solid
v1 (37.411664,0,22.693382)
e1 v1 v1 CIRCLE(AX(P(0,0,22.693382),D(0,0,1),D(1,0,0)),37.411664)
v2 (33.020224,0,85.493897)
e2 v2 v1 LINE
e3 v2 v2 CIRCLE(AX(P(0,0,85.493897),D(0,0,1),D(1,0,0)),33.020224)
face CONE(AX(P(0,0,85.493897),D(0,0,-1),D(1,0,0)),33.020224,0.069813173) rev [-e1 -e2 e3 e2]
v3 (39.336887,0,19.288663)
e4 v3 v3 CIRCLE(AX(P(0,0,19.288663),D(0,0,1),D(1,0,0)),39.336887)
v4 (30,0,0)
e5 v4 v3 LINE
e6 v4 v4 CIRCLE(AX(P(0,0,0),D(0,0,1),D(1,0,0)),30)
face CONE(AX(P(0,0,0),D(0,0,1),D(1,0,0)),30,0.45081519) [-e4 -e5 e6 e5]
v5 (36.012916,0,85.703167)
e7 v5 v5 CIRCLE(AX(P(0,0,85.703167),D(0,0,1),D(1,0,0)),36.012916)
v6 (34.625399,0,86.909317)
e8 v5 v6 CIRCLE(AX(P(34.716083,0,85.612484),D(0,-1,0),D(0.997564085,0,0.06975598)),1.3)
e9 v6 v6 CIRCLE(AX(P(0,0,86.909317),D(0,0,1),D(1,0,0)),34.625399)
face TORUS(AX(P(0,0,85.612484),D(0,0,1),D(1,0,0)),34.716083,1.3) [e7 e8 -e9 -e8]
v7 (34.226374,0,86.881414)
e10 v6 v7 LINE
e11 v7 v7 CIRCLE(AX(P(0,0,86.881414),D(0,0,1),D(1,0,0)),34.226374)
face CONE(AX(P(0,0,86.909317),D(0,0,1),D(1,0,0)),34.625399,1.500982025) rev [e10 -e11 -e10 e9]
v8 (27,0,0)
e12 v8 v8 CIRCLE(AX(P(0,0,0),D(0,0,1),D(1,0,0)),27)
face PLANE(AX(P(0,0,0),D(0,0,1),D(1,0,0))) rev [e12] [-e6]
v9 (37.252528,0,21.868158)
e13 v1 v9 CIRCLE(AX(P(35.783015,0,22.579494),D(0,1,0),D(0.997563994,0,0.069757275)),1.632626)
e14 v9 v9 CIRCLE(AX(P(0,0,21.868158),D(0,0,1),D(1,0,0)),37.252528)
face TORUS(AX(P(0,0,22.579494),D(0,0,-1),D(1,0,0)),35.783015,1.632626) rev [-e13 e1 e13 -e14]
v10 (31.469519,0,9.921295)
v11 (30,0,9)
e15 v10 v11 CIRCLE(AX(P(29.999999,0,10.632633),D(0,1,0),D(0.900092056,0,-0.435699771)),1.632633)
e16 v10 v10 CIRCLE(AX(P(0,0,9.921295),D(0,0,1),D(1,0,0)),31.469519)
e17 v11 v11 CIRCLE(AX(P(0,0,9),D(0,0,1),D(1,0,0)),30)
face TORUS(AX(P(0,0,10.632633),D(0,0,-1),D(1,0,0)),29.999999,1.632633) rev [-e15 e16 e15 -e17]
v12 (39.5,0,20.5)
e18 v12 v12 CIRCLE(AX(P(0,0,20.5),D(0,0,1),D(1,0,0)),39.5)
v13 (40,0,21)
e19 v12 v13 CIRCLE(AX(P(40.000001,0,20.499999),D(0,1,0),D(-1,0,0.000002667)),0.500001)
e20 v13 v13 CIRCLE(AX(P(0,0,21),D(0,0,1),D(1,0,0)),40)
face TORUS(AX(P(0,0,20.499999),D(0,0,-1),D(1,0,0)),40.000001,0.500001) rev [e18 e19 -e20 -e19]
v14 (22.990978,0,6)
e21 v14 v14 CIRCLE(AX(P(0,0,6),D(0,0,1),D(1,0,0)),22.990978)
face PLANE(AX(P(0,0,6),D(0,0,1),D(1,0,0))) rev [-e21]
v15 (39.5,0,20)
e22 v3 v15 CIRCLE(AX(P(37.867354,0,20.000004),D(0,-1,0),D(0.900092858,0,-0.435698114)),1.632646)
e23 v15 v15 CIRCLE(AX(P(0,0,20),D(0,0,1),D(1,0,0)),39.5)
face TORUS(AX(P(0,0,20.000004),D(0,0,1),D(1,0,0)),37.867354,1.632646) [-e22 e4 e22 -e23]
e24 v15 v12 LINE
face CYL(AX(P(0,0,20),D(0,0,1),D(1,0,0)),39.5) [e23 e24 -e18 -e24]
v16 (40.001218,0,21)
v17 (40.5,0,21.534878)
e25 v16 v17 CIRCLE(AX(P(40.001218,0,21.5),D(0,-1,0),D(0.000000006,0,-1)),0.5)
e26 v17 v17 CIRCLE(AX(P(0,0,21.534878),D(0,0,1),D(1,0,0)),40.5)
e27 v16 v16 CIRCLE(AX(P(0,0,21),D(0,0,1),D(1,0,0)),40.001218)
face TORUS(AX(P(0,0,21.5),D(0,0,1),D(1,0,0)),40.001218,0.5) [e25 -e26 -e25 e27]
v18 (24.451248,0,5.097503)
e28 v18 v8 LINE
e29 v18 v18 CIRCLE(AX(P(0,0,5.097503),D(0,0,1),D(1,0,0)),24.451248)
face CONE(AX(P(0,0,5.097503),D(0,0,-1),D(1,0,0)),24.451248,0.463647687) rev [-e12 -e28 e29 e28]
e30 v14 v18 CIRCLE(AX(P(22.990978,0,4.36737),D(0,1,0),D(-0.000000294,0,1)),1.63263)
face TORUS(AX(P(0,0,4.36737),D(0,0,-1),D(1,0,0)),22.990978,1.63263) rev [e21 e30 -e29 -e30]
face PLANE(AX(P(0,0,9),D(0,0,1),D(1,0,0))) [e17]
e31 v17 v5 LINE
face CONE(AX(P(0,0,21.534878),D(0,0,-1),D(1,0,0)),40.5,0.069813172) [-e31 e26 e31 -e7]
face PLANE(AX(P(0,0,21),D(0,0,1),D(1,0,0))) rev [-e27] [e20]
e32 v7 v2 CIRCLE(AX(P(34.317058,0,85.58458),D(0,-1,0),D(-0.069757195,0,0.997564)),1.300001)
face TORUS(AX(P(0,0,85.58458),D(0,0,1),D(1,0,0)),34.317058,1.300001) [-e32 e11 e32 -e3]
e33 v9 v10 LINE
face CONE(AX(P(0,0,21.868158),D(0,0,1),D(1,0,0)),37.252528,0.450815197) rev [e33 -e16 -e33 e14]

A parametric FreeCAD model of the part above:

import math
import FreeCAD as App
import Part
import Sketcher
from FreeCAD import Vector

doc = App.newDocument("Part")
body = doc.addObject("PartDesign::Body", "Body")

# Sketch on XZ plane
sketch1 = body.newObject("Sketcher::SketchObject", "Sketch")
sketch1.AttachmentSupport = (doc.getObject("XZ_Plane"), [""])
sketch1.MapMode = "FlatFace"
sketch1.addGeometry([
    Part.LineSegment(Vector(0, 9, 0), Vector(0, 6, 0)),  # 0
    Part.LineSegment(Vector(0, 6, 0), Vector(22.990978, 6, 0)),  # 1
    Part.ArcOfCircle(Part.Circle(Vector(22.990978, 4.36737, 0), Vector(0, 0, 1), 1.63263), math.radians(26.565006), math.radians(90.000017)),  # 2
    Part.LineSegment(Vector(24.451248, 5.097503, 0), Vector(27, 0, 0)),  # 3
    Part.LineSegment(Vector(27, 0, 0), Vector(30, 0, 0)),  # 4
    Part.LineSegment(Vector(30, 0, 0), Vector(39.336887, 19.288663, 0)),  # 5
    Part.ArcOfCircle(Part.Circle(Vector(37.867354, 20.000004, 0), Vector(0, 0, 1), 1.632646), math.radians(-25.829724), math.radians(-0.000133)),  # 6
    Part.LineSegment(Vector(39.5, 20, 0), Vector(39.5, 20.5, 0)),  # 7
    Part.ArcOfCircle(Part.Circle(Vector(40.000001, 20.499999, 0), Vector(0, 0, 1), 0.500001), math.radians(90.000153), math.radians(179.999847)),  # 8
    Part.LineSegment(Vector(40, 21, 0), Vector(40.001218, 21, 0)),  # 9
    Part.ArcOfCircle(Part.Circle(Vector(40.001218, 21.5, 0), Vector(0, 0, 1), 0.5), math.radians(-90), math.radians(3.999977)),  # 10
    Part.LineSegment(Vector(40.5, 21.534878, 0), Vector(36.012916, 85.703167, 0)),  # 11
    Part.ArcOfCircle(Part.Circle(Vector(34.716083, 85.612484, 0), Vector(0, 0, 1), 1.3), math.radians(3.999972), math.radians(94.000034)),  # 12
    Part.LineSegment(Vector(34.625399, 86.909317, 0), Vector(34.226374, 86.881414, 0)),  # 13
    Part.ArcOfCircle(Part.Circle(Vector(34.317058, 85.58458, 0), Vector(0, 0, 1), 1.300001), math.radians(94.000041), math.radians(183.999965)),  # 14
    Part.LineSegment(Vector(33.020224, 85.493897, 0), Vector(37.411664, 22.693382, 0)),  # 15
    Part.ArcOfCircle(Part.Circle(Vector(35.783015, 22.579494, 0), Vector(0, 0, 1), 1.632626), math.radians(-25.829891), math.radians(4.000046)),  # 16
    Part.LineSegment(Vector(37.252528, 21.868158, 0), Vector(31.469519, 9.921295, 0)),  # 17
    Part.ArcOfCircle(Part.Circle(Vector(29.999999, 10.632633, 0), Vector(0, 0, 1), 1.632633), math.radians(-89.999975), math.radians(-25.82983)),  # 18
    Part.LineSegment(Vector(30, 9, 0), Vector(0, 9, 0)),  # 19
], False)
sketch1.addConstraint([
    Sketcher.Constraint("Coincident", 0, 2, 1, 1),
    Sketcher.Constraint("Coincident", 1, 2, 2, 2),
    Sketcher.Constraint("Coincident", 2, 1, 3, 1),
    Sketcher.Constraint("Coincident", 3, 2, 4, 1),
    Sketcher.Constraint("Coincident", 4, 2, 5, 1),
    Sketcher.Constraint("Coincident", 5, 2, 6, 1),
    Sketcher.Constraint("Coincident", 6, 2, 7, 1),
    Sketcher.Constraint("Coincident", 7, 2, 8, 2),
    Sketcher.Constraint("Coincident", 8, 1, 9, 1),
    Sketcher.Constraint("Coincident", 9, 2, 10, 1),
    Sketcher.Constraint("Coincident", 10, 2, 11, 1),
    Sketcher.Constraint("Coincident", 11, 2, 12, 1),
    Sketcher.Constraint("Coincident", 12, 2, 13, 1),
    Sketcher.Constraint("Coincident", 13, 2, 14, 1),
    Sketcher.Constraint("Coincident", 14, 2, 15, 1),
    Sketcher.Constraint("Coincident", 15, 2, 16, 2),
    Sketcher.Constraint("Coincident", 16, 1, 17, 1),
    Sketcher.Constraint("Coincident", 17, 2, 18, 2),
    Sketcher.Constraint("Coincident", 18, 1, 19, 1),
    Sketcher.Constraint("Coincident", 19, 2, 0, 1),
    Sketcher.Constraint("Vertical", 0),
    Sketcher.Constraint("Horizontal", 1),
    Sketcher.Constraint("Horizontal", 4),
    Sketcher.Constraint("Vertical", 7),
    Sketcher.Constraint("Horizontal", 9),
    Sketcher.Constraint("Horizontal", 19),
    Sketcher.Constraint("PointOnObject", 0, 2, -2),
    Sketcher.Constraint("PointOnObject", 3, 2, -1),
    Sketcher.Constraint("Radius", 8, 0.500001),
    Sketcher.Constraint("Radius", 10, 0.5),
    Sketcher.Constraint("Radius", 12, 1.3),
    Sketcher.Constraint("Radius", 14, 1.300001),
    Sketcher.Constraint("DistanceX", 4, 1, 4, 2, 3.0),
    Sketcher.Constraint("DistanceX", 19, 2, 19, 1, 30.0),
    Sketcher.Constraint("DistanceY", 0, 2, 0, 1, 3.0),
    Sketcher.Constraint("DistanceY", 7, 1, 7, 2, 0.5),
    Sketcher.Constraint("DistanceX", -1, 1, 8, 3, 40.000001),
    Sketcher.Constraint("DistanceX", -1, 1, 18, 3, 29.999999),
    Sketcher.Constraint("DistanceY", -1, 1, 0, 2, 6.0),
    Sketcher.Constraint("DistanceX", -1, 1, 3, 2, 27.0),
    Sketcher.Constraint("DistanceY", -1, 1, 6, 2, 20.0),
    Sketcher.Constraint("DistanceX", -1, 1, 8, 1, 40.0),
    Sketcher.Constraint("DistanceY", -1, 1, 8, 1, 21.0),
    Sketcher.Constraint("DistanceX", 7, 2, 10, 2, 1.0),
    Sketcher.Constraint("Distance", 13, 0.399999),
    Sketcher.Constraint("Radius", 2, 1.63263),
    Sketcher.Constraint("Radius", 6, 1.632646),
    Sketcher.Constraint("Radius", 16, 1.632626),
    Sketcher.Constraint("Radius", 18, 1.632633),
    Sketcher.Constraint("DistanceX", 9, 1, 9, 2, 0.001218),
    Sketcher.Constraint("DistanceX", -1, 1, 12, 2, 34.625399),
    Sketcher.Constraint("DistanceY", 2, 1, 6, 3, 14.902501),
    Sketcher.Constraint("DistanceX", 16, 3, 11, 2, 0.229901),
    Sketcher.Constraint("DistanceX", 11, 2, 10, 3, 3.988302),
    Sketcher.Constraint("Distance", 3, 5.699182),
    Sketcher.Constraint("Distance", 5, 21.429652),
    Sketcher.Constraint("Distance", 11, 64.324981),
    Sketcher.Constraint("DistanceX", 1, 1, 1, 2, 22.990978),
    Sketcher.Constraint("DistanceX", -1, 1, 2, 3, 22.990978),
    Sketcher.Constraint("DistanceX", -1, 1, 14, 3, 34.317058),
    Sketcher.Constraint("DistanceY", -1, 1, 14, 3, 85.58458),
    Sketcher.Constraint("DistanceY", -1, 1, 10, 2, 21.534878),
    Sketcher.Constraint("DistanceY", -1, 1, 15, 2, 22.693382),
    Sketcher.Constraint("DistanceX", -1, 1, 16, 1, 37.252528),
    Sketcher.Constraint("DistanceX", -1, 1, 17, 2, 31.469519),
    Sketcher.Constraint("DistanceX", 12, 3, 8, 3, 5.283918),
    Sketcher.Constraint("DistanceY", 6, 3, 16, 3, 2.579491),
    Sketcher.Constraint("DistanceX", 14, 2, 12, 3, 1.695859),
])
revolution = body.newObject("PartDesign::Revolution", "Revolution")
revolution.Profile = sketch1
revolution.ReferenceAxis = (sketch1, ["V_Axis"])
revolution.Angle = 360

doc.recompute()
